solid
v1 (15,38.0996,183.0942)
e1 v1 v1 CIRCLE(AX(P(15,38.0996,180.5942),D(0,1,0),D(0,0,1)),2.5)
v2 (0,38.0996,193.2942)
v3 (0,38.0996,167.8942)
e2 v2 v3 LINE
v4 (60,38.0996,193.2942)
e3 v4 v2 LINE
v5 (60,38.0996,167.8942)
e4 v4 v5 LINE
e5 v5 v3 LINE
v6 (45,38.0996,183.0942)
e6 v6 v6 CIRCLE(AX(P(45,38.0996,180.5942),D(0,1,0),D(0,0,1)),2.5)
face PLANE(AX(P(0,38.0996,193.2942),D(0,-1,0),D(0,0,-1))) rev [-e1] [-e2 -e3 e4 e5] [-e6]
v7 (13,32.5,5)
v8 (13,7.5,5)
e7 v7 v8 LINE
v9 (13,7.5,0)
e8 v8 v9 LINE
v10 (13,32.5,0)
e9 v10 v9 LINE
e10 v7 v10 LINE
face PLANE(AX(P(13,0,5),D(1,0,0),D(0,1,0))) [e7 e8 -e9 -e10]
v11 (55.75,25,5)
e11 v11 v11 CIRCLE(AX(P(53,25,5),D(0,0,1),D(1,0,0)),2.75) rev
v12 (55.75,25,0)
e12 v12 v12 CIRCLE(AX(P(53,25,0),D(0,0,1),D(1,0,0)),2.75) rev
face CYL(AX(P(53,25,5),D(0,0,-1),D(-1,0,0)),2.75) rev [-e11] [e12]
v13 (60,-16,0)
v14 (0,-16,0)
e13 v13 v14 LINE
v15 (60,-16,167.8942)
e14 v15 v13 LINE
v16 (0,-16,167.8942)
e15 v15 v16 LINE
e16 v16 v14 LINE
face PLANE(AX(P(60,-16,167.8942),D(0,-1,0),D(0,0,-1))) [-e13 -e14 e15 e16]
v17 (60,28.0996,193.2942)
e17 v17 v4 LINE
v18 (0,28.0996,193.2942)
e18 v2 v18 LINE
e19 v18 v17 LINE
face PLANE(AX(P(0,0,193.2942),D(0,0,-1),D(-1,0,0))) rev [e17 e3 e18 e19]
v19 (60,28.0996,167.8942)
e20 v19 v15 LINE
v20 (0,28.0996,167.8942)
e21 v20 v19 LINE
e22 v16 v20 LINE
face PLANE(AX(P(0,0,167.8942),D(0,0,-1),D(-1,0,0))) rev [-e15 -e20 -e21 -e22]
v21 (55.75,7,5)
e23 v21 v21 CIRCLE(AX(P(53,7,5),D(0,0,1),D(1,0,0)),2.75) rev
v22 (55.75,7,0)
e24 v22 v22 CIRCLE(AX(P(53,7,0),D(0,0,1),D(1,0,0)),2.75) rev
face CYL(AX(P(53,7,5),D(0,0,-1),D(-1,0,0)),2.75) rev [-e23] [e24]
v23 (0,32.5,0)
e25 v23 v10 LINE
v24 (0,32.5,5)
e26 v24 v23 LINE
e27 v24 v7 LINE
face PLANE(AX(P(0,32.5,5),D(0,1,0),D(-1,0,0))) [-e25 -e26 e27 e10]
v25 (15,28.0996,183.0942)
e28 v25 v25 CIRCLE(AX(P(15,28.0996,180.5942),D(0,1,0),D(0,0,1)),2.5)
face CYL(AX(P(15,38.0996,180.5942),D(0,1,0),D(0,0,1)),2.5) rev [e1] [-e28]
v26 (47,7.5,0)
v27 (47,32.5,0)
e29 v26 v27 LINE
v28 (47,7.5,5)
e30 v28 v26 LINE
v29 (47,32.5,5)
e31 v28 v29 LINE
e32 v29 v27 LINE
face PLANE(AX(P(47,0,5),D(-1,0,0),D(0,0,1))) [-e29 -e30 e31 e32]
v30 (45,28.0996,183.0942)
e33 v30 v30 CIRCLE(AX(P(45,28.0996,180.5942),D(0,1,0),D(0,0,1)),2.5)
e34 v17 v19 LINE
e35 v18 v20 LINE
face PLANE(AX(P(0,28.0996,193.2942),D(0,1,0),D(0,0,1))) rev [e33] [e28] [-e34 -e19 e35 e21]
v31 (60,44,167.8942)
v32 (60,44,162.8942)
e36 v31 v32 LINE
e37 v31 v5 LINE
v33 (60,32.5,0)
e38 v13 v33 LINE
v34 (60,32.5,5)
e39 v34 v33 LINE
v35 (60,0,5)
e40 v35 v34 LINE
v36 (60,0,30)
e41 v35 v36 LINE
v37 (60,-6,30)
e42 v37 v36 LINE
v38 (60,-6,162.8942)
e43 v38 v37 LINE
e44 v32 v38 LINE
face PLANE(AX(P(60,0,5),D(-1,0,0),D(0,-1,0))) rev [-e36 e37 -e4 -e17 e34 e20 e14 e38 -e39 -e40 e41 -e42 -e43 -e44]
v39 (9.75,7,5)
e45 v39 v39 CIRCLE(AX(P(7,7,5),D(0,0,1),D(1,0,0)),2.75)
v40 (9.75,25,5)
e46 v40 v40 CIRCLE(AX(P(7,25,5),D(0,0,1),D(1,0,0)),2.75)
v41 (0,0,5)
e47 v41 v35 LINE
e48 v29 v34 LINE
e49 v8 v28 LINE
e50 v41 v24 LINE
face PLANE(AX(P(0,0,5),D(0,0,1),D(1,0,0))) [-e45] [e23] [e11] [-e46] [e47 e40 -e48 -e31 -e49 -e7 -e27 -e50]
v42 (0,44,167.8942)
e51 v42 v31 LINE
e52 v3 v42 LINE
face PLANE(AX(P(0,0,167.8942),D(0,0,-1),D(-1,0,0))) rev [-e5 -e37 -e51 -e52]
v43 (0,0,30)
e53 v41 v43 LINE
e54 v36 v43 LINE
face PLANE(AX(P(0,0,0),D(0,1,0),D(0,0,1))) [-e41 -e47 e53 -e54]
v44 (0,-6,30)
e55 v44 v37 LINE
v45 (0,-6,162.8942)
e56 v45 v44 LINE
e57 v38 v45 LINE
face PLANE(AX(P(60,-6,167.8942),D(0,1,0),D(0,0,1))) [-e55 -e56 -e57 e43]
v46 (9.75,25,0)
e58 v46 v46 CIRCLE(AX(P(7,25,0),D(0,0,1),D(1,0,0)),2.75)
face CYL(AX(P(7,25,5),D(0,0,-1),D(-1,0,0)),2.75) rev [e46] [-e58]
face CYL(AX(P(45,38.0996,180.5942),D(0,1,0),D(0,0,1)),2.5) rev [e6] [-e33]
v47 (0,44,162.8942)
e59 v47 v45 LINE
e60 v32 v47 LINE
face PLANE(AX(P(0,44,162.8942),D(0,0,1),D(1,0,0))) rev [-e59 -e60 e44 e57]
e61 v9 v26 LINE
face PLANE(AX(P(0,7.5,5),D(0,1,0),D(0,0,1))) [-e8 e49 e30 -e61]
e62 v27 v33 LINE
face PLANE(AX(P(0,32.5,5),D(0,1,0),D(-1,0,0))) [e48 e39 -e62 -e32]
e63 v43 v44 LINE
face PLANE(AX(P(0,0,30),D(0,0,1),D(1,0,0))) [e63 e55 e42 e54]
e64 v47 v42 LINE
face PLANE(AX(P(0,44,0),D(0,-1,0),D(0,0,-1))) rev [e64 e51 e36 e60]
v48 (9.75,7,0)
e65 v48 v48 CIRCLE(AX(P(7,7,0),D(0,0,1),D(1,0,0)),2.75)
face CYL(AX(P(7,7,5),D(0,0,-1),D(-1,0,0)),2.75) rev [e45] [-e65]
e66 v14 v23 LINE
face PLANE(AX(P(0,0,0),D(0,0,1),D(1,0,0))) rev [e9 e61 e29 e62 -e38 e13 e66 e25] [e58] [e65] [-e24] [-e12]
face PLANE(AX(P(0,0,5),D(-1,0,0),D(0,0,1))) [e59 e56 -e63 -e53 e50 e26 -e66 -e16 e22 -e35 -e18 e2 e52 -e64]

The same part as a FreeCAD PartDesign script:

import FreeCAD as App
import Part
import Sketcher

V = App.Vector

doc = App.newDocument("Part")
body = doc.addObject("PartDesign::Body", "Body")

# Sketch on XY plane
sketch1 = body.newObject("Sketcher::SketchObject", "Sketch")
sketch1.AttachmentSupport = (doc.getObject("XY_Plane"), [""])
sketch1.MapMode = "FlatFace"
sketch1.addGeometry([
    Part.LineSegment(V(13, 7.5, 0), V(13, 32.5, 0)),  # 0
    Part.LineSegment(V(13, 32.5, 0), V(0, 32.5, 0)),  # 1
    Part.LineSegment(V(0, 32.5, 0), V(0, 0, 0)),  # 2
    Part.LineSegment(V(0, 0, 0), V(60, 0, 0)),  # 3
    Part.LineSegment(V(60, 0, 0), V(60, 32.5, 0)),  # 4
    Part.LineSegment(V(60, 32.5, 0), V(47, 32.5, 0)),  # 5
    Part.LineSegment(V(47, 32.5, 0), V(47, 7.5, 0)),  # 6
    Part.LineSegment(V(47, 7.5, 0), V(13, 7.5, 0)),  # 7
    Part.Circle(V(7, 7, 0), V(0, 0, 1), 2.75),  # 8
    Part.Circle(V(7, 25, 0), V(0, 0, 1), 2.75),  # 9
    Part.Circle(V(53, 25, 0), V(0, 0, 1), 2.75),  # 10
    Part.Circle(V(53, 7, 0), V(0, 0, 1), 2.75),  # 11
], False)
sketch1.addConstraint([
    Sketcher.Constraint("Coincident", 0, 2, 1, 1),
    Sketcher.Constraint("Coincident", 1, 2, 2, 1),
    Sketcher.Constraint("Coincident", 2, 2, 3, 1),
    Sketcher.Constraint("Coincident", 3, 2, 4, 1),
    Sketcher.Constraint("Coincident", 4, 2, 5, 1),
    Sketcher.Constraint("Coincident", 5, 2, 6, 1),
    Sketcher.Constraint("Coincident", 6, 2, 7, 1),
    Sketcher.Constraint("Coincident", 7, 2, 0, 1),
    Sketcher.Constraint("Vertical", 0),
    Sketcher.Constraint("Horizontal", 1),
    Sketcher.Constraint("Vertical", 2),
    Sketcher.Constraint("Horizontal", 3),
    Sketcher.Constraint("Vertical", 4),
    Sketcher.Constraint("Horizontal", 5),
    Sketcher.Constraint("Vertical", 6),
    Sketcher.Constraint("Horizontal", 7),
    Sketcher.Constraint("Coincident", 2, 2, -1, 1),
    Sketcher.Constraint("Equal", 8, 9),
    Sketcher.Constraint("Equal", 9, 10),
    Sketcher.Constraint("Equal", 10, 11),
    Sketcher.Constraint("Horizontal", 9, 3, 10, 3),
    Sketcher.Constraint("Horizontal", 8, 3, 11, 3),
    Sketcher.Constraint("Horizontal", 1, 2, 4, 2),
    Sketcher.Constraint("Vertical", 8, 3, 9, 3),
    Sketcher.Constraint("Vertical", 10, 3, 11, 3),
    Sketcher.Constraint("Equal", 1, 5),
    Sketcher.Constraint("Diameter", 8, 5.5),
    Sketcher.Constraint("DistanceX", 1, 2, 1, 1, 13.0),
    Sketcher.Constraint("DistanceX", 3, 1, 3, 2, 60.0),
    Sketcher.Constraint("DistanceY", 0, 1, 0, 2, 25.0),
    Sketcher.Constraint("DistanceY", 2, 2, 2, 1, 32.5),
    Sketcher.Constraint("DistanceX", -1, 1, 8, 3, 7.0),
    Sketcher.Constraint("DistanceY", -1, 1, 8, 3, 7.0),
    Sketcher.Constraint("DistanceY", -1, 1, 9, 3, 25.0),
    Sketcher.Constraint("DistanceX", -1, 1, 10, 3, 53.0),
])
pad1 = body.newObject("PartDesign::Pad", "Pad")
pad1.Profile = sketch1
pad1.Length = 5

# Sketch on XY plane
sketch2 = body.newObject("Sketcher::SketchObject", "Sketch001")
sketch2.AttachmentSupport = (doc.getObject("XY_Plane"), [""])
sketch2.MapMode = "FlatFace"
sketch2.AttachmentOffset = App.Placement(V(0, 0, 5), App.Rotation())
sketch2.addGeometry([
    Part.LineSegment(V(0, 0, 0), V(0, -6, 0)),
    Part.LineSegment(V(0, -6, 0), V(60, -6, 0)),
    Part.LineSegment(V(60, -6, 0), V(60, 0, 0)),
    Part.LineSegment(V(60, 0, 0), V(0, 0, 0)),
], False)
sketch2.addConstraint([
    Sketcher.Constraint("Coincident", 0, 2, 1, 1),
    Sketcher.Constraint("Coincident", 1, 2, 2, 1),
    Sketcher.Constraint("Coincident", 2, 2, 3, 1),
    Sketcher.Constraint("Coincident", 3, 2, 0, 1),
    Sketcher.Constraint("Vertical", 0),
    Sketcher.Constraint("Horizontal", 1),
    Sketcher.Constraint("Vertical", 2),
    Sketcher.Constraint("Horizontal", 3),
    Sketcher.Constraint("Coincident", 3, 2, -1, 1),
    Sketcher.Constraint("DistanceX", 1, 1, 1, 2, 60.0),
    Sketcher.Constraint("DistanceY", 0, 2, 0, 1, 6.0),
])
pad2 = body.newObject("PartDesign::Pad", "Pad001")
pad2.Profile = sketch2
pad2.Type = "TwoLengths"
pad2.Length = 25
pad2.Length2 = 5

# Sketch on XY plane
sketch3 = body.newObject("Sketcher::SketchObject", "Sketch002")
sketch3.AttachmentSupport = (doc.getObject("XY_Plane"), [""])
sketch3.MapMode = "FlatFace"
sketch3.addGeometry([
    Part.LineSegment(V(60, -6, 0), V(60, -16, 0)),
    Part.LineSegment(V(60, -16, 0), V(0, -16, 0)),
    Part.LineSegment(V(0, -16, 0), V(0, -6, 0)),
    Part.LineSegment(V(0, -6, 0), V(60, -6, 0)),
], False)
sketch3.addConstraint([
    Sketcher.Constraint("Coincident", 0, 2, 1, 1),
    Sketcher.Constraint("Coincident", 1, 2, 2, 1),
    Sketcher.Constraint("Coincident", 2, 2, 3, 1),
    Sketcher.Constraint("Coincident", 3, 2, 0, 1),
    Sketcher.Constraint("Vertical", 0),
    Sketcher.Constraint("Horizontal", 1),
    Sketcher.Constraint("Vertical", 2),
    Sketcher.Constraint("Horizontal", 3),
    Sketcher.Constraint("PointOnObject", 1, 2, -2),
    Sketcher.Constraint("DistanceX", 1, 2, 1, 1, 60.0),
    Sketcher.Constraint("DistanceY", 0, 2, 0, 1, 10.0),
    Sketcher.Constraint("DistanceY", 0, 2, -1, 1, 16.0),
])
pad3 = body.newObject("PartDesign::Pad", "Pad002")
pad3.Profile = sketch3
pad3.Length = 167.8942

# Sketch on XZ plane
sketch4 = body.newObject("Sketcher::SketchObject", "Sketch003")
sketch4.AttachmentSupport = (doc.getObject("XZ_Plane"), [""])
sketch4.MapMode = "FlatFace"
sketch4.AttachmentOffset = App.Placement(V(0, 0, 6), App.Rotation())
sketch4.addGeometry([
    Part.LineSegment(V(0, 162.8942, 0), V(0, 167.8942, 0)),
    Part.LineSegment(V(0, 167.8942, 0), V(60, 167.8942, 0)),
    Part.LineSegment(V(60, 167.8942, 0), V(60, 162.8942, 0)),
    Part.LineSegment(V(60, 162.8942, 0), V(0, 162.8942, 0)),
], False)
sketch4.addConstraint([
    Sketcher.Constraint("Coincident", 0, 2, 1, 1),
    Sketcher.Constraint("Coincident", 1, 2, 2, 1),
    Sketcher.Constraint("Coincident", 2, 2, 3, 1),
    Sketcher.Constraint("Coincident", 3, 2, 0, 1),
    Sketcher.Constraint("Vertical", 0),
    Sketcher.Constraint("Horizontal", 1),
    Sketcher.Constraint("Vertical", 2),
    Sketcher.Constraint("Horizontal", 3),
    Sketcher.Constraint("PointOnObject", 0, 2, -2),
    Sketcher.Constraint("DistanceX", 1, 1, 1, 2, 60.0),
    Sketcher.Constraint("DistanceY", 0, 1, 0, 2, 5.0),
    Sketcher.Constraint("DistanceY", -1, 1, 0, 2, 167.8942),
])
pad4 = body.newObject("PartDesign::Pad", "Pad003")
pad4.Profile = sketch4
pad4.Length = 50
pad4.Reversed = True

# Sketch on XY plane
sketch5 = body.newObject("Sketcher::SketchObject", "Sketch004")
sketch5.AttachmentSupport = (doc.getObject("XY_Plane"), [""])
sketch5.MapMode = "FlatFace"
sketch5.AttachmentOffset = App.Placement(V(0, 0, 167.8942), App.Rotation())
sketch5.addGeometry([
    Part.LineSegment(V(0, 38.0996, 0), V(0, 28.0996, 0)),
    Part.LineSegment(V(0, 28.0996, 0), V(60, 28.0996, 0)),
    Part.LineSegment(V(60, 28.0996, 0), V(60, 38.0996, 0)),
    Part.LineSegment(V(60, 38.0996, 0), V(0, 38.0996, 0)),
], False)
sketch5.addConstraint([
    Sketcher.Constraint("Coincident", 0, 2, 1, 1),
    Sketcher.Constraint("Coincident", 1, 2, 2, 1),
    Sketcher.Constraint("Coincident", 2, 2, 3, 1),
    Sketcher.Constraint("Coincident", 3, 2, 0, 1),
    Sketcher.Constraint("Vertical", 0),
    Sketcher.Constraint("Horizontal", 1),
    Sketcher.Constraint("Vertical", 2),
    Sketcher.Constraint("Horizontal", 3),
    Sketcher.Constraint("PointOnObject", 0, 2, -2),
    Sketcher.Constraint("DistanceX", 1, 1, 1, 2, 60.0),
    Sketcher.Constraint("DistanceY", 0, 2, 0, 1, 10.0),
    Sketcher.Constraint("DistanceY", -1, 1, 0, 2, 28.0996),
])
pad5 = body.newObject("PartDesign::Pad", "Pad004")
pad5.Profile = sketch5
pad5.Length = 25.4

# Sketch on XZ plane
sketch6 = body.newObject("Sketcher::SketchObject", "Sketch005")
sketch6.AttachmentSupport = (doc.getObject("XZ_Plane"), [""])
sketch6.MapMode = "FlatFace"
sketch6.AttachmentOffset = App.Placement(V(0, 0, -38.0996), App.Rotation())
sketch6.addGeometry([
    Part.Circle(V(45, 180.5942, 0), V(0, 0, 1), 2.5),
    Part.Circle(V(15, 180.5942, 0), V(0, 0, 1), 2.5),
], False)
sketch6.addConstraint([
    Sketcher.Constraint("Equal", 0, 1),
    Sketcher.Constraint("Horizontal", 0, 3, 1, 3),
    Sketcher.Constraint("Diameter", 0, 5.0),
    Sketcher.Constraint("DistanceX", -1, 1, 0, 3, 45.0),
    Sketcher.Constraint("DistanceX", -1, 1, 1, 3, 15.0),
    Sketcher.Constraint("DistanceY", -1, 1, 0, 3, 180.5942),
])
doc.recompute()
hole = body.newObject("PartDesign::Hole", "Hole")
hole.Profile = sketch6
hole.ThreadType = "None"
hole.Diameter = 5
hole.DepthType = "ThroughAll"
hole.Reversed = True

doc.recompute()
